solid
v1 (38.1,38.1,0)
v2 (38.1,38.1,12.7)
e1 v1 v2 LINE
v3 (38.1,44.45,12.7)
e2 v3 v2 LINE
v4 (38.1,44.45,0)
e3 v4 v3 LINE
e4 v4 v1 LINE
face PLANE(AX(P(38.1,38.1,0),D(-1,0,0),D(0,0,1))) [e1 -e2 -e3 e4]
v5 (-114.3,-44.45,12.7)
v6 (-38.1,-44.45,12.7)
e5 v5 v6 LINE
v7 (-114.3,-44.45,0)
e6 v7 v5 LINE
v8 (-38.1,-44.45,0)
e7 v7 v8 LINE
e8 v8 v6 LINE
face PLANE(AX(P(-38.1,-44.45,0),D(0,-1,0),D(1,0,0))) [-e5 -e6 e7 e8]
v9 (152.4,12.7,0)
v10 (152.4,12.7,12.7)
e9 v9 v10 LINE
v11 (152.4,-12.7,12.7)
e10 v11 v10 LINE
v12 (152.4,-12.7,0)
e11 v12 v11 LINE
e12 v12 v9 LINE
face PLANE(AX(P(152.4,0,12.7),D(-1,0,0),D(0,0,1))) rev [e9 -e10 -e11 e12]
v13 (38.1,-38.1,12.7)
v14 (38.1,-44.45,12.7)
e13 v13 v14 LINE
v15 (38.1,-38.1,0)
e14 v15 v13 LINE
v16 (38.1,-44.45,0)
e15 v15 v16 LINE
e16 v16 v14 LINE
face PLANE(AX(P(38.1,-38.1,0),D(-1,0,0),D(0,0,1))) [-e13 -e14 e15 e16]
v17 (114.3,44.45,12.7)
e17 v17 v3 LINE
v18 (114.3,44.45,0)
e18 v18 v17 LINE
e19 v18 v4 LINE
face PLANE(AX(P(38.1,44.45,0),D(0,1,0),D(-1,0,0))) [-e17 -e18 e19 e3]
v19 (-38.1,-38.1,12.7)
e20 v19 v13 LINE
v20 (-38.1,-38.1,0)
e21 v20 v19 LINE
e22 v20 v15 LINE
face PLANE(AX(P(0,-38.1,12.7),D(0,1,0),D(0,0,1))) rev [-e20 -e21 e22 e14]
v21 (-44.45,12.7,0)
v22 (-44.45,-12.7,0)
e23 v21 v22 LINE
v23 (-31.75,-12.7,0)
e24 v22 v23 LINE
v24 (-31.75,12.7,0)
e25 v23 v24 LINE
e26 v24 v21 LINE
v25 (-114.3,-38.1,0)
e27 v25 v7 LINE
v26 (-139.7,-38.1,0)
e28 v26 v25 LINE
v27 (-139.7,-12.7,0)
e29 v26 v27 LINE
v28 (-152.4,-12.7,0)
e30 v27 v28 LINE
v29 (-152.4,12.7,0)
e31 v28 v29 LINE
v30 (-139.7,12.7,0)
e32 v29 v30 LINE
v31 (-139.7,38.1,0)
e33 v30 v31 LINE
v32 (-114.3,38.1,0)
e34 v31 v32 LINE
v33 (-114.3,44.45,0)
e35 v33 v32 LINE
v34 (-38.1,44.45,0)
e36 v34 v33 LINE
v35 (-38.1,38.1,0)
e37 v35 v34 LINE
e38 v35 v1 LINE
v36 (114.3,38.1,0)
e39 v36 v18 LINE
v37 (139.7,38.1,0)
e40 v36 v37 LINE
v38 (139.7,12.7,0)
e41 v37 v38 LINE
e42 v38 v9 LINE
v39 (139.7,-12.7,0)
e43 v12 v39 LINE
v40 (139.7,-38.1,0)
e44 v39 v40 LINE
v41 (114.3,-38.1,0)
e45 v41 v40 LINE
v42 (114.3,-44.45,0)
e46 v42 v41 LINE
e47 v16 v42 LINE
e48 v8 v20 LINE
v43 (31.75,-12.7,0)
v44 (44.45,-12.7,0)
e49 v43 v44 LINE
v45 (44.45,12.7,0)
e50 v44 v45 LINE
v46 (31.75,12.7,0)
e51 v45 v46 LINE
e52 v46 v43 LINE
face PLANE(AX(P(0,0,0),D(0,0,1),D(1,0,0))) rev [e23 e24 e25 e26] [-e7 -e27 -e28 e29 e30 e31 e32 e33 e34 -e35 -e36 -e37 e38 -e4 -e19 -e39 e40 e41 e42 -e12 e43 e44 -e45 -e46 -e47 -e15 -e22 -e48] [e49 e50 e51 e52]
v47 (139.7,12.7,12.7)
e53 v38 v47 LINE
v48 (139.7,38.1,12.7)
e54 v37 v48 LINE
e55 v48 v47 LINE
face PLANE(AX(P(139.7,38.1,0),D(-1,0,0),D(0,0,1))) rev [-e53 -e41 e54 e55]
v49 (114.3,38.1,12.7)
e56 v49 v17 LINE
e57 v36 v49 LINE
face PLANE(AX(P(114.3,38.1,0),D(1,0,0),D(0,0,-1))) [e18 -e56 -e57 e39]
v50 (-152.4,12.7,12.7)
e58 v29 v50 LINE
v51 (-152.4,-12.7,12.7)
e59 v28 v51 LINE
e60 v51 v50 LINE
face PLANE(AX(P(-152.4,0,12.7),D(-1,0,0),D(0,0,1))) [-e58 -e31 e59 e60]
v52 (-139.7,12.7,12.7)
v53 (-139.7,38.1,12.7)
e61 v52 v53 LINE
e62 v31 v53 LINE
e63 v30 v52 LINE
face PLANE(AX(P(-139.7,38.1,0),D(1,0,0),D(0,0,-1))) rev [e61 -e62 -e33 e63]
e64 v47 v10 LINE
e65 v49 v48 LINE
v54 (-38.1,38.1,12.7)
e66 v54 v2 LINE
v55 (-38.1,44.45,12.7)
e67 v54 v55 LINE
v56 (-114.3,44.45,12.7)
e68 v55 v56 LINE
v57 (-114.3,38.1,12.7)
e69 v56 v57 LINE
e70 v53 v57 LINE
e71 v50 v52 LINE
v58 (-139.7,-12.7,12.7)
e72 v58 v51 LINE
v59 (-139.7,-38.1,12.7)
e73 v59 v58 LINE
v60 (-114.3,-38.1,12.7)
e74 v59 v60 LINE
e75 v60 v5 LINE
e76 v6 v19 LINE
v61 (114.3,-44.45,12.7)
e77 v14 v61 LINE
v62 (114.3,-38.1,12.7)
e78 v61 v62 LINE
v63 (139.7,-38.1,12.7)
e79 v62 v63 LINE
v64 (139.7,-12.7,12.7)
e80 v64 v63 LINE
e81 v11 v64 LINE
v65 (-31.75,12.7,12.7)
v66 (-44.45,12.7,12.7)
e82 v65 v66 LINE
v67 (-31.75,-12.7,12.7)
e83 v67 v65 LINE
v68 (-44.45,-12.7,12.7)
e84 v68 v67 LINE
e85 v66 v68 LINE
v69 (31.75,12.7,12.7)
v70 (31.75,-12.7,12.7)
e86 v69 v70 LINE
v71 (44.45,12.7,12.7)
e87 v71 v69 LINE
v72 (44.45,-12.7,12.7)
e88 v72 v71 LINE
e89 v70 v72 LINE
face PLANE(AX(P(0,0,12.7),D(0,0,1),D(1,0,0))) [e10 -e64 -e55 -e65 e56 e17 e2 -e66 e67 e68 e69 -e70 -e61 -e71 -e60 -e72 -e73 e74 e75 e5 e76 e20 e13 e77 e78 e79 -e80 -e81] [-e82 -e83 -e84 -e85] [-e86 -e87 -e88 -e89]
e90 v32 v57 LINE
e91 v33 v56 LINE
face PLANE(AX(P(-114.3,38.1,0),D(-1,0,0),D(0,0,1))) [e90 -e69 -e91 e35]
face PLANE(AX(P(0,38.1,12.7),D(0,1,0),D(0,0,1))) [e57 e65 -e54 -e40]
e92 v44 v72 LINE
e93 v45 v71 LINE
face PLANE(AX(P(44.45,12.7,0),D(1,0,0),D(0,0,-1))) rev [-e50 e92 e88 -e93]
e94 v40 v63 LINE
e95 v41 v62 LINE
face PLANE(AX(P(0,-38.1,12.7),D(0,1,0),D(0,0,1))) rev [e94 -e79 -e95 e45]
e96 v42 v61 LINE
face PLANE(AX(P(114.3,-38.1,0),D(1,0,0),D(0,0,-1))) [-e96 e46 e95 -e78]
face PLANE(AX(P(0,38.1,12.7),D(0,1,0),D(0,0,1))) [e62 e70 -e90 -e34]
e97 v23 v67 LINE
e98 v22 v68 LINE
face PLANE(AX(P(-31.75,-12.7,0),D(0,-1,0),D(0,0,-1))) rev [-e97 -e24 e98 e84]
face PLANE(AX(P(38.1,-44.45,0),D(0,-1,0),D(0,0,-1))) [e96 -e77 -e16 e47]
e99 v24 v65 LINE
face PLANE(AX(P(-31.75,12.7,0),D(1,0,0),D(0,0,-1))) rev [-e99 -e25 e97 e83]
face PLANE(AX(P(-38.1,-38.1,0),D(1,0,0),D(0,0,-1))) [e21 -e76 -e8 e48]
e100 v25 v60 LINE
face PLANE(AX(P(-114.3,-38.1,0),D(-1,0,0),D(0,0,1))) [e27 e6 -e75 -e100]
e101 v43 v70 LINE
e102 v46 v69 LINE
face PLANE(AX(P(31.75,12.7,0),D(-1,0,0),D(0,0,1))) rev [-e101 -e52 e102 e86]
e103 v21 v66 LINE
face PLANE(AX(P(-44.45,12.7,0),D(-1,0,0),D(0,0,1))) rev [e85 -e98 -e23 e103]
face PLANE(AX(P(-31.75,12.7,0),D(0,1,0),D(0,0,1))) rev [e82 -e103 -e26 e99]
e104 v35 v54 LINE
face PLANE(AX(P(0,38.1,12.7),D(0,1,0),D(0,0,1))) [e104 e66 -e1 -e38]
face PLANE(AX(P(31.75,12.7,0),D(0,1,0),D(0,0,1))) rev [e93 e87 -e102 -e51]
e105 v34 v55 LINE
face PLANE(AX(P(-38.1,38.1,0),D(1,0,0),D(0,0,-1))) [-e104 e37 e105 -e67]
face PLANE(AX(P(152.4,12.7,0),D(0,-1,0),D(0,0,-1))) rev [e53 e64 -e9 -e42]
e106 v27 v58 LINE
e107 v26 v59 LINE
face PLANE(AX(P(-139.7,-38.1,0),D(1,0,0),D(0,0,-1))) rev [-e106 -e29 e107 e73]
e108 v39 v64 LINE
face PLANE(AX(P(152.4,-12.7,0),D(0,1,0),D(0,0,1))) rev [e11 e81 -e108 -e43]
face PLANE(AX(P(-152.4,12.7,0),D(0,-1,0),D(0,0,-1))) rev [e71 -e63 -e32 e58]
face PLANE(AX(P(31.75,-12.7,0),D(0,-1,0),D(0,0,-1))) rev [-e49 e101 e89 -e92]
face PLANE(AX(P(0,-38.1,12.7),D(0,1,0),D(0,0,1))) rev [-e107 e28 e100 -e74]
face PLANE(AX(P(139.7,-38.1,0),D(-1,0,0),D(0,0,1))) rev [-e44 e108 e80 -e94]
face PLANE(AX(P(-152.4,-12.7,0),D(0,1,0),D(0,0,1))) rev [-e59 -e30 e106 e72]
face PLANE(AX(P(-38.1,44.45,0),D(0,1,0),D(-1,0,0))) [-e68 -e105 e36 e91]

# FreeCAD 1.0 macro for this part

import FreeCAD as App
import Part
import Sketcher
from FreeCAD import Vector
Q = App.Units.Quantity

doc = App.newDocument("Part")
body = doc.addObject("PartDesign::Body", "Body")

sketch1 = doc.addObject("Sketcher::SketchObject", "Sketch")
body.addObject(sketch1)
sketch1.AttachmentSupport = (doc.XY_Plane, [""])
sketch1.MapMode = "FlatFace"
sketch1.addGeometry([
    Part.LineSegment(Vector(-152.4, 38.1, 0), Vector(-152.4, -38.1, 0)),
    Part.LineSegment(Vector(-152.4, -38.1, 0), Vector(152.4, -38.1, 0)),
    Part.LineSegment(Vector(152.4, -38.1, 0), Vector(152.4, 38.1, 0)),
    Part.LineSegment(Vector(152.4, 38.1, 0), Vector(-152.4, 38.1, 0)),
], False)
sketch1.addConstraint([
    Sketcher.Constraint("Coincident", 0, 2, 1, 1),
    Sketcher.Constraint("Coincident", 1, 2, 2, 1),
    Sketcher.Constraint("Coincident", 2, 2, 3, 1),
    Sketcher.Constraint("Coincident", 3, 2, 0, 1),
    Sketcher.Constraint("Vertical", 0),
    Sketcher.Constraint("Horizontal", 1),
    Sketcher.Constraint("Vertical", 2),
    Sketcher.Constraint("Horizontal", 3),
    Sketcher.Constraint("Symmetric", 0, 2, 2, 2, -1, 1),
    Sketcher.Constraint("DistanceX", 1, 1, 1, 2, Q("12 in")),
    Sketcher.Constraint("DistanceY", 0, 2, 0, 1, Q("3 in")),
])
pad1 = doc.addObject("PartDesign::Pad", "Pad")
body.addObject(pad1)
pad1.Profile = sketch1
pad1.Length = Q("0.5 in")

sketch2 = doc.addObject("Sketcher::SketchObject", "Sketch001")
body.addObject(sketch2)
sketch2.AttachmentSupport = (doc.XY_Plane, [""])
sketch2.MapMode = "FlatFace"
sketch2.AttachmentOffset = App.Placement(Vector(0, 0, 0.5 * 25.4), App.Rotation())
sketch2.addGeometry([
    Part.LineSegment(Vector(-114.3, -38.1, 0), Vector(-114.3, -44.45, 0)),
    Part.LineSegment(Vector(-114.3, -44.45, 0), Vector(-38.1, -44.45, 0)),
    Part.LineSegment(Vector(-38.1, -44.45, 0), Vector(-38.1, -38.1, 0)),
    Part.LineSegment(Vector(-38.1, -38.1, 0), Vector(-114.3, -38.1, 0)),
    Part.LineSegment(Vector(38.1, -38.1, 0), Vector(38.1, -44.45, 0)),
    Part.LineSegment(Vector(38.1, -44.45, 0), Vector(114.3, -44.45, 0)),
    Part.LineSegment(Vector(114.3, -44.45, 0), Vector(114.3, -38.1, 0)),
    Part.LineSegment(Vector(114.3, -38.1, 0), Vector(38.1, -38.1, 0)),
    Part.LineSegment(Vector(38.1, 44.45, 0), Vector(38.1, 38.1, 0)),
    Part.LineSegment(Vector(38.1, 38.1, 0), Vector(114.3, 38.1, 0)),
    Part.LineSegment(Vector(114.3, 38.1, 0), Vector(114.3, 44.45, 0)),
    Part.LineSegment(Vector(114.3, 44.45, 0), Vector(38.1, 44.45, 0)),
    Part.LineSegment(Vector(-114.3, 44.45, 0), Vector(-114.3, 38.1, 0)),
    Part.LineSegment(Vector(-114.3, 38.1, 0), Vector(-38.1, 38.1, 0)),
    Part.LineSegment(Vector(-38.1, 38.1, 0), Vector(-38.1, 44.45, 0)),
    Part.LineSegment(Vector(-38.1, 44.45, 0), Vector(-114.3, 44.45, 0)),
], False)
sketch2.addConstraint([
    Sketcher.Constraint("Coincident", 0, 2, 1, 1),
    Sketcher.Constraint("Coincident", 1, 2, 2, 1),
    Sketcher.Constraint("Coincident", 2, 2, 3, 1),
    Sketcher.Constraint("Coincident", 3, 2, 0, 1),
    Sketcher.Constraint("Coincident", 4, 2, 5, 1),
    Sketcher.Constraint("Coincident", 5, 2, 6, 1),
    Sketcher.Constraint("Coincident", 6, 2, 7, 1),
    Sketcher.Constraint("Coincident", 7, 2, 4, 1),
    Sketcher.Constraint("Coincident", 8, 2, 9, 1),
    Sketcher.Constraint("Coincident", 9, 2, 10, 1),
    Sketcher.Constraint("Coincident", 10, 2, 11, 1),
    Sketcher.Constraint("Coincident", 11, 2, 8, 1),
    Sketcher.Constraint("Coincident", 12, 2, 13, 1),
    Sketcher.Constraint("Coincident", 13, 2, 14, 1),
    Sketcher.Constraint("Coincident", 14, 2, 15, 1),
    Sketcher.Constraint("Coincident", 15, 2, 12, 1),
    Sketcher.Constraint("Vertical", 0),
    Sketcher.Constraint("Horizontal", 1),
    Sketcher.Constraint("Vertical", 2),
    Sketcher.Constraint("Horizontal", 3),
    Sketcher.Constraint("Vertical", 4),
    Sketcher.Constraint("Horizontal", 5),
    Sketcher.Constraint("Vertical", 6),
    Sketcher.Constraint("Horizontal", 7),
    Sketcher.Constraint("Vertical", 8),
    Sketcher.Constraint("Horizontal", 9),
    Sketcher.Constraint("Vertical", 10),
    Sketcher.Constraint("Horizontal", 11),
    Sketcher.Constraint("Vertical", 12),
    Sketcher.Constraint("Horizontal", 13),
    Sketcher.Constraint("Vertical", 14),
    Sketcher.Constraint("Horizontal", 15),
    Sketcher.Constraint("Symmetric", 2, 2, 8, 2, -1, 1),
    Sketcher.Constraint("Symmetric", 0, 2, 10, 2, -1, 1),
    Sketcher.Constraint("Symmetric", 6, 2, 12, 2, -1, 1),
    Sketcher.Constraint("Symmetric", 4, 2, 14, 2, -1, 1),
    Sketcher.Constraint("Symmetric", 1, 2, 4, 2, -2),
    Sketcher.Constraint("Symmetric", 3, 2, 6, 2, -2),
    Sketcher.Constraint("DistanceX", 1, 1, 1, 2, Q("3 in")),
    Sketcher.Constraint("DistanceX", 1, 2, 4, 2, Q("3 in")),
    Sketcher.Constraint("DistanceY", 7, 2, 8, 2, Q("3 in")),
    Sketcher.Constraint("DistanceY", 0, 2, 0, 1, Q("0.25 in")),
])
pad2 = doc.addObject("PartDesign::Pad", "Pad001")
body.addObject(pad2)
pad2.Profile = sketch2
pad2.Length = Q("0.5 in")
pad2.Reversed = True

sketch3 = doc.addObject("Sketcher::SketchObject", "Sketch002")
body.addObject(sketch3)
sketch3.AttachmentSupport = (doc.XY_Plane, [""])
sketch3.MapMode = "FlatFace"
sketch3.AttachmentOffset = App.Placement(Vector(0, 0, 0.5 * 25.4), App.Rotation())
sketch3.addGeometry([
    Part.LineSegment(Vector(-152.4, -12.7, 0), Vector(-152.4, -38.1, 0)),
    Part.LineSegment(Vector(-152.4, -38.1, 0), Vector(-139.7, -38.1, 0)),
    Part.LineSegment(Vector(-139.7, -38.1, 0), Vector(-139.7, -12.7, 0)),
    Part.LineSegment(Vector(-139.7, -12.7, 0), Vector(-152.4, -12.7, 0)),
    Part.LineSegment(Vector(-152.4, 38.1, 0), Vector(-152.4, 12.7, 0)),
    Part.LineSegment(Vector(-152.4, 12.7, 0), Vector(-139.7, 12.7, 0)),
    Part.LineSegment(Vector(-139.7, 12.7, 0), Vector(-139.7, 38.1, 0)),
    Part.LineSegment(Vector(-139.7, 38.1, 0), Vector(-152.4, 38.1, 0)),
    Part.LineSegment(Vector(139.7, 38.1, 0), Vector(139.7, 12.7, 0)),
    Part.LineSegment(Vector(139.7, 12.7, 0), Vector(152.4, 12.7, 0)),
    Part.LineSegment(Vector(152.4, 12.7, 0), Vector(152.4, 38.1, 0)),
    Part.LineSegment(Vector(152.4, 38.1, 0), Vector(139.7, 38.1, 0)),
    Part.LineSegment(Vector(139.7, -12.7, 0), Vector(139.7, -38.1, 0)),
    Part.LineSegment(Vector(139.7, -38.1, 0), Vector(152.4, -38.1, 0)),
    Part.LineSegment(Vector(152.4, -38.1, 0), Vector(152.4, -12.7, 0)),
    Part.LineSegment(Vector(152.4, -12.7, 0), Vector(139.7, -12.7, 0)),
    Part.LineSegment(Vector(31.75, 12.7, 0), Vector(31.75, -12.7, 0)),
    Part.LineSegment(Vector(31.75, -12.7, 0), Vector(44.45, -12.7, 0)),
    Part.LineSegment(Vector(44.45, -12.7, 0), Vector(44.45, 12.7, 0)),
    Part.LineSegment(Vector(44.45, 12.7, 0), Vector(31.75, 12.7, 0)),
    Part.LineSegment(Vector(-44.45, 12.7, 0), Vector(-44.45, -12.7, 0)),
    Part.LineSegment(Vector(-44.45, -12.7, 0), Vector(-31.75, -12.7, 0)),
    Part.LineSegment(Vector(-31.75, -12.7, 0), Vector(-31.75, 12.7, 0)),
    Part.LineSegment(Vector(-31.75, 12.7, 0), Vector(-44.45, 12.7, 0)),
], False)
sketch3.addConstraint([
    Sketcher.Constraint("Coincident", 0, 2, 1, 1),
    Sketcher.Constraint("Coincident", 1, 2, 2, 1),
    Sketcher.Constraint("Coincident", 2, 2, 3, 1),
    Sketcher.Constraint("Coincident", 3, 2, 0, 1),
    Sketcher.Constraint("Coincident", 4, 2, 5, 1),
    Sketcher.Constraint("Coincident", 5, 2, 6, 1),
    Sketcher.Constraint("Coincident", 6, 2, 7, 1),
    Sketcher.Constraint("Coincident", 7, 2, 4, 1),
    Sketcher.Constraint("Coincident", 8, 2, 9, 1),
    Sketcher.Constraint("Coincident", 9, 2, 10, 1),
    Sketcher.Constraint("Coincident", 10, 2, 11, 1),
    Sketcher.Constraint("Coincident", 11, 2, 8, 1),
    Sketcher.Constraint("Coincident", 12, 2, 13, 1),
    Sketcher.Constraint("Coincident", 13, 2, 14, 1),
    Sketcher.Constraint("Coincident", 14, 2, 15, 1),
    Sketcher.Constraint("Coincident", 15, 2, 12, 1),
    Sketcher.Constraint("Coincident", 16, 2, 17, 1),
    Sketcher.Constraint("Coincident", 17, 2, 18, 1),
    Sketcher.Constraint("Coincident", 18, 2, 19, 1),
    Sketcher.Constraint("Coincident", 19, 2, 16, 1),
    Sketcher.Constraint("Coincident", 20, 2, 21, 1),
    Sketcher.Constraint("Coincident", 21, 2, 22, 1),
    Sketcher.Constraint("Coincident", 22, 2, 23, 1),
    Sketcher.Constraint("Coincident", 23, 2, 20, 1),
    Sketcher.Constraint("Vertical", 0),
    Sketcher.Constraint("Horizontal", 1),
    Sketcher.Constraint("Vertical", 2),
    Sketcher.Constraint("Horizontal", 3),
    Sketcher.Constraint("Vertical", 4),
    Sketcher.Constraint("Horizontal", 5),
    Sketcher.Constraint("Vertical", 6),
    Sketcher.Constraint("Horizontal", 7),
    Sketcher.Constraint("Vertical", 8),
    Sketcher.Constraint("Horizontal", 9),
    Sketcher.Constraint("Vertical", 10),
    Sketcher.Constraint("Horizontal", 11),
    Sketcher.Constraint("Vertical", 12),
    Sketcher.Constraint("Horizontal", 13),
    Sketcher.Constraint("Vertical", 14),
    Sketcher.Constraint("Horizontal", 15),
    Sketcher.Constraint("Vertical", 16),
    Sketcher.Constraint("Horizontal", 17),
    Sketcher.Constraint("Vertical", 18),
    Sketcher.Constraint("Horizontal", 19),
    Sketcher.Constraint("Vertical", 20),
    Sketcher.Constraint("Horizontal", 21),
    Sketcher.Constraint("Vertical", 22),
    Sketcher.Constraint("Horizontal", 23),
    Sketcher.Constraint("Symmetric", 2, 2, 8, 2, -1, 1),
    Sketcher.Constraint("Symmetric", 0, 2, 10, 2, -1, 1),
    Sketcher.Constraint("Symmetric", 6, 2, 12, 2, -1, 1),
    Sketcher.Constraint("Symmetric", 4, 2, 14, 2, -1, 1),
    Sketcher.Constraint("Symmetric", 18, 2, 20, 2, -1, 1),
    Sketcher.Constraint("Symmetric", 16, 2, 22, 2, -1, 1),
    Sketcher.Constraint("Symmetric", 5, 2, 8, 2, -2),
    Sketcher.Constraint("Symmetric", 7, 2, 10, 2, -2),
    Sketcher.Constraint("Horizontal", 15, 2, 16, 2),
    Sketcher.Constraint("Horizontal", 9, 2, 18, 2),
    Sketcher.Constraint("Equal", 15, 17),
    Sketcher.Constraint("Equal", 14, 16),
    Sketcher.Constraint("DistanceY", 0, 2, 0, 1, Q("1 in")),
    Sketcher.Constraint("DistanceX", 1, 1, 1, 2, Q("0.5 in")),
    Sketcher.Constraint("DistanceX", 0, 2, -1, 1, Q("6 in")),
    Sketcher.Constraint("DistanceX", 20, 2, 16, 2, Q("3 in")),
])
pocket1 = doc.addObject("PartDesign::Pocket", "Pocket")
body.addObject(pocket1)
pocket1.Profile = sketch3
pocket1.Type = "ThroughAll"

doc.recompute()
